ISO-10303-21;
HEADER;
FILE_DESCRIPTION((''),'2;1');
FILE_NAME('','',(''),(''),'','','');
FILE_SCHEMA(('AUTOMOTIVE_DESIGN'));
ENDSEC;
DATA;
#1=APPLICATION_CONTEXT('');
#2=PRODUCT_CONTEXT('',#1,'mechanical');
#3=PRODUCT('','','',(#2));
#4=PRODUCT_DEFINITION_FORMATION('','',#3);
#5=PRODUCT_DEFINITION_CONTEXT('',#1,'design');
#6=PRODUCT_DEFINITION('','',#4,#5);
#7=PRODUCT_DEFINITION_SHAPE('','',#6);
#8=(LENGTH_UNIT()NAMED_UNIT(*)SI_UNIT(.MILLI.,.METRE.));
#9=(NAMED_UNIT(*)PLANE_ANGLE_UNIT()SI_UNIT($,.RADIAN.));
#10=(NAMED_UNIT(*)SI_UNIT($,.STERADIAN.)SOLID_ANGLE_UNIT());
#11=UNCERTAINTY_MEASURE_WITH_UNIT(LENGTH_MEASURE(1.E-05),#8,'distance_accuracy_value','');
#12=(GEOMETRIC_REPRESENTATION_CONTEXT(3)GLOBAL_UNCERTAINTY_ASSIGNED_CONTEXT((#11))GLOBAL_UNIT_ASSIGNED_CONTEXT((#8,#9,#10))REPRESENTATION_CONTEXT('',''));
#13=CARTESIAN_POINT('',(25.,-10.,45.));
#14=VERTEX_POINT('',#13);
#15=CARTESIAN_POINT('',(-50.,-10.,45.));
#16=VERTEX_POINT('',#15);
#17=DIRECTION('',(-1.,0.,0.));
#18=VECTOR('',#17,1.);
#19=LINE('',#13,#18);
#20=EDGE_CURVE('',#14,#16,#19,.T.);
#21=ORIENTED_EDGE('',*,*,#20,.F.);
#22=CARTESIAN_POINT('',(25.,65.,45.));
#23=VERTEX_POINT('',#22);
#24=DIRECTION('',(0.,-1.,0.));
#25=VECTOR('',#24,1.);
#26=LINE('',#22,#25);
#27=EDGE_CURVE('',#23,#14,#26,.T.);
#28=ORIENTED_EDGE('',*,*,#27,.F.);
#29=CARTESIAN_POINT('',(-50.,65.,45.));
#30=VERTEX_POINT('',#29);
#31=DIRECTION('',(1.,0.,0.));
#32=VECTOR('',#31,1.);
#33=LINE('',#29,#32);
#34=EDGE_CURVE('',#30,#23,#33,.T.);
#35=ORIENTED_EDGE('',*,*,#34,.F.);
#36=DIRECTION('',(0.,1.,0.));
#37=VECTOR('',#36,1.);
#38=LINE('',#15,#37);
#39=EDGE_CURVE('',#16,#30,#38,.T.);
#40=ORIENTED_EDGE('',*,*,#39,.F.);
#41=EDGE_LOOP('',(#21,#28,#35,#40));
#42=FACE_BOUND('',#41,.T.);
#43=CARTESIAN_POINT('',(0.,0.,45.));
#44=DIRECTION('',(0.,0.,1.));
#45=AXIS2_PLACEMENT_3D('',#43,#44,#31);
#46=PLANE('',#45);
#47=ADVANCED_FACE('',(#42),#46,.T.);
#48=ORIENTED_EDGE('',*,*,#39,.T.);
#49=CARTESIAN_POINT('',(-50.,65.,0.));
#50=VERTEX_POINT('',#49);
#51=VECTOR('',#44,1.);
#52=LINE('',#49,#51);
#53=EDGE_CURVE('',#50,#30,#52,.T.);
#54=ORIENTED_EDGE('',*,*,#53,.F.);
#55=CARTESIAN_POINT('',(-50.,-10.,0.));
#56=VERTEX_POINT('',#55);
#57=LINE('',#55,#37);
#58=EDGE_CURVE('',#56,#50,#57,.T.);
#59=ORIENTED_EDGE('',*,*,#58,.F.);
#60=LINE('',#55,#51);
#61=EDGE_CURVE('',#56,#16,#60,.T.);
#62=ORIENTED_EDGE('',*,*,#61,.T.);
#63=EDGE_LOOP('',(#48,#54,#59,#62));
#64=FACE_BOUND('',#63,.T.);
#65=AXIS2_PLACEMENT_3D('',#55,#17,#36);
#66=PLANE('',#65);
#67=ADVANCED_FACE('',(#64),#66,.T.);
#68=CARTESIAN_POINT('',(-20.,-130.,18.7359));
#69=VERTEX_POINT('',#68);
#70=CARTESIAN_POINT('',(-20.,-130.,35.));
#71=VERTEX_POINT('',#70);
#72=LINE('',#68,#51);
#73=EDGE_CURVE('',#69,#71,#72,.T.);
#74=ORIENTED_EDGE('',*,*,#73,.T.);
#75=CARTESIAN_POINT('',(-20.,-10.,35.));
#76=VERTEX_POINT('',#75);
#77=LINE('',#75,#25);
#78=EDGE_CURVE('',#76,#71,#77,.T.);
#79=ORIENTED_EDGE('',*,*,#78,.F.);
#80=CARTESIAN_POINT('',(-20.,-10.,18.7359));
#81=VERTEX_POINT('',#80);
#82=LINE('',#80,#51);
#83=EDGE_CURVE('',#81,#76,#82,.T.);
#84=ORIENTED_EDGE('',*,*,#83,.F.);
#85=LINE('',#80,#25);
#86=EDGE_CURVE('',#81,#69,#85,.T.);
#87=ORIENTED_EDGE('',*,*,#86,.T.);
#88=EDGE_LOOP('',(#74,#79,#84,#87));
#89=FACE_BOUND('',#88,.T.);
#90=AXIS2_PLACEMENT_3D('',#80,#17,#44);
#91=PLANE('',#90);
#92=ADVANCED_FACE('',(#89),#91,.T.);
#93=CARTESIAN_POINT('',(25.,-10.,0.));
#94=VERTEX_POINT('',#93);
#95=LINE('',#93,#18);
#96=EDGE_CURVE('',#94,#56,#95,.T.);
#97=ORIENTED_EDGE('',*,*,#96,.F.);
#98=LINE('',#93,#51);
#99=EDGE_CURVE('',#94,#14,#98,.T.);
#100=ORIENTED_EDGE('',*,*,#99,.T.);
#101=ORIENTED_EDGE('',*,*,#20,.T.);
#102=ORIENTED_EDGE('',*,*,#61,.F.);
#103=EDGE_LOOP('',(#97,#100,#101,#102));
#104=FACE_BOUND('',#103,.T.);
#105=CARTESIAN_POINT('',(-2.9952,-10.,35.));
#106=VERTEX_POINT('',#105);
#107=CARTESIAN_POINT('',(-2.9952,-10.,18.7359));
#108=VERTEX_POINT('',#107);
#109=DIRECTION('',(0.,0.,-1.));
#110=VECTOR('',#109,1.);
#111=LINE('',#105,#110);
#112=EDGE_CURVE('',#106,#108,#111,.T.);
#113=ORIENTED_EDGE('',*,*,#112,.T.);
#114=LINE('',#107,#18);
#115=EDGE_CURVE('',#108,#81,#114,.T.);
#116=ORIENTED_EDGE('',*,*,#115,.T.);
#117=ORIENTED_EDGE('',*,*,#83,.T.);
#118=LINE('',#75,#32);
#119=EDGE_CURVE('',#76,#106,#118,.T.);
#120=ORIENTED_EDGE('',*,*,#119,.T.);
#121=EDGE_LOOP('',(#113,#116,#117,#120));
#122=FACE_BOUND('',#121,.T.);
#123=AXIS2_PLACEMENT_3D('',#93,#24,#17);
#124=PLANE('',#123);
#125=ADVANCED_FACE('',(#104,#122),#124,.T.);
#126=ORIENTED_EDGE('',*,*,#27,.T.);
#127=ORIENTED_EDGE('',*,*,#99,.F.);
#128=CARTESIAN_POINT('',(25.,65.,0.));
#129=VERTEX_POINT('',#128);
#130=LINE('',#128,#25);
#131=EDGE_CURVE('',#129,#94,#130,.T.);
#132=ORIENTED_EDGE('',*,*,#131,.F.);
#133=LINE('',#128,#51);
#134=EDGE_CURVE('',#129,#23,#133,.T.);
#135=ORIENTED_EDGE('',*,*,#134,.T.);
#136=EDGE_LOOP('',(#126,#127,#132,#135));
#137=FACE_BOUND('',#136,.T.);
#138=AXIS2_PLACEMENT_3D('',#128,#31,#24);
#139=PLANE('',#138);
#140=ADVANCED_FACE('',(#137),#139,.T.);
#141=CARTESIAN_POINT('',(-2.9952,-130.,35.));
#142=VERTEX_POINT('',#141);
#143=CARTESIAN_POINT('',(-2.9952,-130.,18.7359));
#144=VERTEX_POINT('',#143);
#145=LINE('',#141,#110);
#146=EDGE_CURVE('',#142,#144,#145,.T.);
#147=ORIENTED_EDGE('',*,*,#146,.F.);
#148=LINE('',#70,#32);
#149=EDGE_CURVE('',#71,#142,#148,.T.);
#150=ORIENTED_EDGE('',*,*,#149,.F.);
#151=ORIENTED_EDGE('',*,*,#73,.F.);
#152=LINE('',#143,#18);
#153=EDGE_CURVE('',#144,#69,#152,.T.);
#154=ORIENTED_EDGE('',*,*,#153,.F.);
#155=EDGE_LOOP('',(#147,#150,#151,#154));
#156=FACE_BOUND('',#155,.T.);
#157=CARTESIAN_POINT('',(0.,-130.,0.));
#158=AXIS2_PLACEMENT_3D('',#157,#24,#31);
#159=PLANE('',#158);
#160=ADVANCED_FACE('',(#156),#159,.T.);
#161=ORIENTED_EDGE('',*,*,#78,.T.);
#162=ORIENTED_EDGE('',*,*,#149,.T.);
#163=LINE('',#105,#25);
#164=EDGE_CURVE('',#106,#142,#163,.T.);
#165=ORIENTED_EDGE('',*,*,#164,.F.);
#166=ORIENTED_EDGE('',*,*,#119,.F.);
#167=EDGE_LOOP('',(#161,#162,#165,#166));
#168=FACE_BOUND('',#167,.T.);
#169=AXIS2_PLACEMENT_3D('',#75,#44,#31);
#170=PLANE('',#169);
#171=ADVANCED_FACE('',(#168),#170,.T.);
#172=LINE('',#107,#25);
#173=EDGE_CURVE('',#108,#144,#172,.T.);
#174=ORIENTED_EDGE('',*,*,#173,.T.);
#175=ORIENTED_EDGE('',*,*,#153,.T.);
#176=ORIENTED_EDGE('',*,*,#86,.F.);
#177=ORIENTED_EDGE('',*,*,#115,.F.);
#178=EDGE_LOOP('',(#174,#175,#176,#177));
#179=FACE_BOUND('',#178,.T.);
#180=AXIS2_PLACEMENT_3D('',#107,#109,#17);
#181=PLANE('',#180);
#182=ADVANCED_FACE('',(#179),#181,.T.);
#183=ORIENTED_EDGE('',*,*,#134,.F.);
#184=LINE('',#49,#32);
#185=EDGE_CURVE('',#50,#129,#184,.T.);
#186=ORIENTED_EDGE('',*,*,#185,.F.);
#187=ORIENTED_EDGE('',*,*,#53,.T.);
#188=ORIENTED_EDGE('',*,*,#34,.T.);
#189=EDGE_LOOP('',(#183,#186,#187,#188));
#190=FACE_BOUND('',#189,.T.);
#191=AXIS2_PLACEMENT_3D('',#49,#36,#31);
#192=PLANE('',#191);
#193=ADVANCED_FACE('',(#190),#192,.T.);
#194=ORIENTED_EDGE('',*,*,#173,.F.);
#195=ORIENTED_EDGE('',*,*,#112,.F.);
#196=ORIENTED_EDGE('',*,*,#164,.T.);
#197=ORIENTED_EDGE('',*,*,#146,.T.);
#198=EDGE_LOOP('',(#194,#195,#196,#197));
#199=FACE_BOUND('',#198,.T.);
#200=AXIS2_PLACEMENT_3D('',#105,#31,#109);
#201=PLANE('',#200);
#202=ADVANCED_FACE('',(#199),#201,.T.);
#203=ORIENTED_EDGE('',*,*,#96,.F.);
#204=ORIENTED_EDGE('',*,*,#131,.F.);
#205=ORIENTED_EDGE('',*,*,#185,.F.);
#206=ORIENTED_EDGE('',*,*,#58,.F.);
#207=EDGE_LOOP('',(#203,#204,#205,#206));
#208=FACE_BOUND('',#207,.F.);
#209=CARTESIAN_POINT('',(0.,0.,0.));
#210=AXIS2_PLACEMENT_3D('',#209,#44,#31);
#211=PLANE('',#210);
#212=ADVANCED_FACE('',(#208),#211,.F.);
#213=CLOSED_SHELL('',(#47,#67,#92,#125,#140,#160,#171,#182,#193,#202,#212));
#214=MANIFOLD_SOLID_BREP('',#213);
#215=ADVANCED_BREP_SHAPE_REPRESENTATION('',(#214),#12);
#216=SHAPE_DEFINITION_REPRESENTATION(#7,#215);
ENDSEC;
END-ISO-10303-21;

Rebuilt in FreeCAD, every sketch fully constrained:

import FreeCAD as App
import Part
import Sketcher
from FreeCAD import Vector
Q = App.Units.Quantity

doc = App.newDocument("Part")
params = doc.addObject("Spreadsheet::Sheet", "Params")
for row, (alias, value) in enumerate([
    ("sketch1_width", "75 mm"),
    ("pad1_length", "45 mm"),
    ("pad2_length", "120 mm"),
], start=1):
    params.set(f"A{row}", alias)
    params.set(f"B{row}", "=" + value)
    params.setAlias(f"B{row}", alias)

body = doc.addObject("PartDesign::Body", "Body")

sketch1 = body.newObject("Sketcher::SketchObject", "Sketch")
sketch1.AttachmentSupport = (doc.getObject("XY_Plane"), [""])
sketch1.MapMode = "FlatFace"
sketch1.addGeometry([
    Part.LineSegment(Vector(25, 65, 0), Vector(-50, 65, 0)),
    Part.LineSegment(Vector(-50, 65, 0), Vector(-50, -10, 0)),
    Part.LineSegment(Vector(-50, -10, 0), Vector(25, -10, 0)),
    Part.LineSegment(Vector(25, -10, 0), Vector(25, 65, 0)),
], False)
sketch1.addConstraint([
    Sketcher.Constraint("Coincident", 0, 2, 1, 1),
    Sketcher.Constraint("Coincident", 1, 2, 2, 1),
    Sketcher.Constraint("Coincident", 2, 2, 3, 1),
    Sketcher.Constraint("Coincident", 3, 2, 0, 1),
    Sketcher.Constraint("Horizontal", 0),
    Sketcher.Constraint("Vertical", 1),
    Sketcher.Constraint("Horizontal", 2),
    Sketcher.Constraint("Vertical", 3),
    Sketcher.Constraint("Equal", 2, 1),
    Sketcher.Constraint("DistanceX", 0, 2, 0, 1, Q("75 mm")),
    Sketcher.Constraint("DistanceX", 0, 2, -1, 1, Q("50 mm")),
    Sketcher.Constraint("DistanceY", -1, 1, 0, 2, Q("65 mm")),
])
sketch1.setExpression("Constraints[9]", "Params.sketch1_width")
pad1 = body.newObject("PartDesign::Pad", "Pad")
pad1.Profile = sketch1
pad1.setExpression("Length", "Params.pad1_length")

sketch2 = body.newObject("Sketcher::SketchObject", "Sketch001")
sketch2.AttachmentSupport = (doc.getObject("XZ_Plane"), [""])
sketch2.MapMode = "FlatFace"
sketch2.AttachmentOffset = App.Placement(Vector(0, 0, 10), App.Rotation())
sketch2.addGeometry([
    Part.LineSegment(Vector(-3, 35, 0), Vector(-20, 35, 0)),
    Part.LineSegment(Vector(-20, 35, 0), Vector(-20, 19, 0)),
    Part.LineSegment(Vector(-20, 19, 0), Vector(-3, 19, 0)),
    Part.LineSegment(Vector(-3, 19, 0), Vector(-3, 35, 0)),
], False)
sketch2.addConstraint([
    Sketcher.Constraint("Coincident", 0, 2, 1, 1),
    Sketcher.Constraint("Coincident", 1, 2, 2, 1),
    Sketcher.Constraint("Coincident", 2, 2, 3, 1),
    Sketcher.Constraint("Coincident", 3, 2, 0, 1),
    Sketcher.Constraint("Horizontal", 0),
    Sketcher.Constraint("Vertical", 1),
    Sketcher.Constraint("Horizontal", 2),
    Sketcher.Constraint("Vertical", 3),
    Sketcher.Constraint("DistanceX", 0, 2, -1, 1, Q("20 mm")),
    Sketcher.Constraint("DistanceY", -1, 1, 0, 2, Q("35 mm")),
    Sketcher.Constraint("DistanceY", 1, 2, 1, 1, Q("16.264 mm")),
    Sketcher.Constraint("DistanceX", 0, 2, 0, 1, Q("17.0048 mm")),
])
pad2 = body.newObject("PartDesign::Pad", "Pad001")
pad2.Profile = sketch2
pad2.setExpression("Length", "Params.pad2_length")

doc.recompute()
